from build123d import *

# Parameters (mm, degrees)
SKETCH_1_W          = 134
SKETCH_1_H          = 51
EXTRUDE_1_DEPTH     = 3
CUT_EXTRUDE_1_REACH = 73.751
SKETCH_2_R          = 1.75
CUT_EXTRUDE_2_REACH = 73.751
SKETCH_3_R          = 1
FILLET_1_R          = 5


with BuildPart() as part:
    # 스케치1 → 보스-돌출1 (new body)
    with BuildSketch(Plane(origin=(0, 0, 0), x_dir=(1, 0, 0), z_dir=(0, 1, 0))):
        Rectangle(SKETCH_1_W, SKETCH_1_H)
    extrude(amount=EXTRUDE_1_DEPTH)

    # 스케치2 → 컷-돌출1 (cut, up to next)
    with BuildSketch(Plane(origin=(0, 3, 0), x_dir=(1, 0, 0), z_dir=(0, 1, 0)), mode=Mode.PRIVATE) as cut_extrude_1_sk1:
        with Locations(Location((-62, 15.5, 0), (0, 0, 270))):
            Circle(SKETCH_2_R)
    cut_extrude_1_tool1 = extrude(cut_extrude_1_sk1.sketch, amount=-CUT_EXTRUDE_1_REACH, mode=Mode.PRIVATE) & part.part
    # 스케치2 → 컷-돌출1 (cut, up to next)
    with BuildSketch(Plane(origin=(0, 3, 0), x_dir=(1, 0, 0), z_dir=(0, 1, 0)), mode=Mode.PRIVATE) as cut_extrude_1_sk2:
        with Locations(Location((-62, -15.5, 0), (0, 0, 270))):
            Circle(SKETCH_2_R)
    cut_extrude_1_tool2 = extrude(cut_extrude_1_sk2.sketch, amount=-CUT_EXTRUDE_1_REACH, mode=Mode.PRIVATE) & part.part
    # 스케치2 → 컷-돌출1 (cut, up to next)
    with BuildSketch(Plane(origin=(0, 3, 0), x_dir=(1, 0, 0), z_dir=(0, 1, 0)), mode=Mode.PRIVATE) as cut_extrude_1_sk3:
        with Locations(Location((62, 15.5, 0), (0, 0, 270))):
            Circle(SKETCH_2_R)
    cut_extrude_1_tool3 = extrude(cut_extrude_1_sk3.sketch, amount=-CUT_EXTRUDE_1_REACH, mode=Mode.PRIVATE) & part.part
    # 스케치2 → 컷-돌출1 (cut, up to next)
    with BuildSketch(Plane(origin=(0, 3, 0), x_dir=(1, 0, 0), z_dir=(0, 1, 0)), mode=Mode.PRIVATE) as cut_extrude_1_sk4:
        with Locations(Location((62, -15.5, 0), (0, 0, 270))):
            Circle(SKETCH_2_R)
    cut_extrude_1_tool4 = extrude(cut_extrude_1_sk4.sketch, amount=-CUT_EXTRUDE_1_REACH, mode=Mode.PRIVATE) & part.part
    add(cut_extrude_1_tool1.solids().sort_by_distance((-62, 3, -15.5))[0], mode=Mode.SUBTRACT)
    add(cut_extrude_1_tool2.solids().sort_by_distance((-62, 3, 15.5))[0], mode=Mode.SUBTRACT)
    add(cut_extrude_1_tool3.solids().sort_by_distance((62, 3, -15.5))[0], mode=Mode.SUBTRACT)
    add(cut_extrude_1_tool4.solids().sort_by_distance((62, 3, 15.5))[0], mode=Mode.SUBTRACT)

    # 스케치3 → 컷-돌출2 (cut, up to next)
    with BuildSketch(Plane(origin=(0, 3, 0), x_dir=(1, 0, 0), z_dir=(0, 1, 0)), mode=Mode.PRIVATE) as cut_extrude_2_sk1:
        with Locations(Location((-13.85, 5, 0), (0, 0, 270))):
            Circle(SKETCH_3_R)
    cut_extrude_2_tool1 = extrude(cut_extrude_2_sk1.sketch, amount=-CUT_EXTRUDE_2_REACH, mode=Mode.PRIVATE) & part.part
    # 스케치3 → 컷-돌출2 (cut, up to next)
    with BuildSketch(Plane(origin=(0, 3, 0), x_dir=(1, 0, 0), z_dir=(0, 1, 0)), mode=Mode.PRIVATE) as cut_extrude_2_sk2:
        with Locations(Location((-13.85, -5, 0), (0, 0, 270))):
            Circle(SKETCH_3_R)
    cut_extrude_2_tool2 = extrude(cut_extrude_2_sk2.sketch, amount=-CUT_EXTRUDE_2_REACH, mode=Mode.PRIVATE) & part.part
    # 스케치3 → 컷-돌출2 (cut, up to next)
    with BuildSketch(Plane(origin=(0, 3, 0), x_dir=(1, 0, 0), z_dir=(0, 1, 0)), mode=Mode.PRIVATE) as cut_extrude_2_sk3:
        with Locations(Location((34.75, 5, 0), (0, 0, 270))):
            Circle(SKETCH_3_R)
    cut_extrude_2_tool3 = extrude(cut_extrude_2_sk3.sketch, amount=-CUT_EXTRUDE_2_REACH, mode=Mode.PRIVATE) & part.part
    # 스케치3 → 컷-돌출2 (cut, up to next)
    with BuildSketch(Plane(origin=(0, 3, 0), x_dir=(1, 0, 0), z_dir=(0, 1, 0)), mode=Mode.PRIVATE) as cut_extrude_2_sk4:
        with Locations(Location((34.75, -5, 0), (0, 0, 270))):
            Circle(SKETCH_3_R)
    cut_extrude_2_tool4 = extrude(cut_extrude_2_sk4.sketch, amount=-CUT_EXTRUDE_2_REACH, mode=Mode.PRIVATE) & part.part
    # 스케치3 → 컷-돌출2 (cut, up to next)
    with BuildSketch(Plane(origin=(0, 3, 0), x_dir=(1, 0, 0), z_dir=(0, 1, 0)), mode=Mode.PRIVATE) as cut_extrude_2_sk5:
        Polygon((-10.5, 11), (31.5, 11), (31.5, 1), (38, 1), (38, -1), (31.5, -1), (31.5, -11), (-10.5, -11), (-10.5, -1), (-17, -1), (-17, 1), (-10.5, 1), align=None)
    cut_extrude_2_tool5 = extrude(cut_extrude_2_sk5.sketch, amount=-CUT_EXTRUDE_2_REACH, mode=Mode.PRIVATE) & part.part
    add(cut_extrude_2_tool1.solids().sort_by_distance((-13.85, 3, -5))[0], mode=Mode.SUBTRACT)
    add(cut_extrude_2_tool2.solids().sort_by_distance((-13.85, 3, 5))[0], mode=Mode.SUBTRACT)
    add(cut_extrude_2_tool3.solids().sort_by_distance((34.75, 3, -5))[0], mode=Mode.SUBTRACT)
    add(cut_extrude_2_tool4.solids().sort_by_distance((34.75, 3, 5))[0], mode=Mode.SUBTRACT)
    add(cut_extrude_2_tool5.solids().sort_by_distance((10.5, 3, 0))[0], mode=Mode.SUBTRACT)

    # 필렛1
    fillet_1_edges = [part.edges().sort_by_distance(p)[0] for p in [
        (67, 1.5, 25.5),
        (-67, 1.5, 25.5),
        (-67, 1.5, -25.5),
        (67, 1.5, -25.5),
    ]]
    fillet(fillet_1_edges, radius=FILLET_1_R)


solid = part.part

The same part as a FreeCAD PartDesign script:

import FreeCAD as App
import Part
import Sketcher
from FreeCAD import Vector
Q = App.Units.Quantity


def edges_at(feature, points):
    """Names of the edges that pass closest to the given points."""
    edges = feature.Shape.Edges
    near = lambda p: min(range(len(edges)), key=lambda i: edges[i].distToShape(Part.Vertex(*p))[0])
    return sorted({f"Edge{near(p) + 1}" for p in points})

doc = App.newDocument("Part")
body = doc.addObject("PartDesign::Body", "Body")

# Sketch on XZ plane
sketch1 = doc.addObject("Sketcher::SketchObject", "Sketch")
body.addObject(sketch1)
sketch1.AttachmentSupport = (doc.XZ_Plane, [""])
sketch1.MapMode = "FlatFace"
sketch1.addGeometry(Part.LineSegment(Vector(-67, -26, 0), Vector(-67, 26, 0)), False)
sketch1.addGeometry(Part.LineSegment(Vector(-67, 26, 0), Vector(67, 26, 0)), False)
sketch1.addGeometry(Part.LineSegment(Vector(67, 26, 0), Vector(67, -26, 0)), False)
sketch1.addGeometry(Part.LineSegment(Vector(67, -26, 0), Vector(-67, -26, 0)), False)
sketch1.addConstraint(Sketcher.Constraint("Coincident", 0, 2, 1, 1))
sketch1.addConstraint(Sketcher.Constraint("Coincident", 1, 2, 2, 1))
sketch1.addConstraint(Sketcher.Constraint("Coincident", 2, 2, 3, 1))
sketch1.addConstraint(Sketcher.Constraint("Coincident", 3, 2, 0, 1))
sketch1.addConstraint(Sketcher.Constraint("Vertical", 0))
sketch1.addConstraint(Sketcher.Constraint("Horizontal", 1))
sketch1.addConstraint(Sketcher.Constraint("Vertical", 2))
sketch1.addConstraint(Sketcher.Constraint("Horizontal", 3))
sketch1.addConstraint(Sketcher.Constraint("Symmetric", 0, 2, 2, 2, -1, 1))
sketch1.addConstraint(Sketcher.Constraint("DistanceX", 1, 1, 1, 2, Q("134 mm")))
sketch1.addConstraint(Sketcher.Constraint("DistanceY", 0, 1, 0, 2, Q("51 mm")))
pad1 = doc.addObject("PartDesign::Pad", "Pad")
body.addObject(pad1)
pad1.Profile = sketch1
pad1.Length = 3
pad1.Reversed = True

# Sketch on XZ plane
sketch2 = doc.addObject("Sketcher::SketchObject", "Sketch001")
body.addObject(sketch2)
sketch2.AttachmentSupport = (doc.XZ_Plane, [""])
sketch2.MapMode = "FlatFace"
sketch2.AttachmentOffset = App.Placement(Vector(0, 0, -3), App.Rotation())
sketch2.addGeometry(Part.Circle(Vector(-62, -15.5, 0), Vector(0, 0, 1), 1.8), False)
sketch2.addConstraint(Sketcher.Constraint("Diameter", 0, Q("3.5 mm")))
sketch2.addConstraint(Sketcher.Constraint("DistanceX", 0, 3, -1, 1, Q("62 mm")))
sketch2.addConstraint(Sketcher.Constraint("DistanceY", 0, 3, -1, 1, Q("15.5 mm")))
pocket1 = doc.addObject("PartDesign::Pocket", "Pocket")
body.addObject(pocket1)
pocket1.Profile = sketch2
pocket1.Type = "UpToFirst"
pocket1.Reversed = True

# Sketch on XZ plane
sketch3 = doc.addObject("Sketcher::SketchObject", "Sketch002")
body.addObject(sketch3)
sketch3.AttachmentSupport = (doc.XZ_Plane, [""])
sketch3.MapMode = "FlatFace"
sketch3.AttachmentOffset = App.Placement(Vector(0, 0, -3), App.Rotation())
sketch3.addGeometry(Part.Circle(Vector(-62, 15.5, 0), Vector(0, 0, 1), 1.8), False)
sketch3.addConstraint(Sketcher.Constraint("Diameter", 0, Q("3.5 mm")))
sketch3.addConstraint(Sketcher.Constraint("DistanceX", 0, 3, -1, 1, Q("62 mm")))
sketch3.addConstraint(Sketcher.Constraint("DistanceY", -1, 1, 0, 3, Q("15.5 mm")))
pocket2 = doc.addObject("PartDesign::Pocket", "Pocket001")
body.addObject(pocket2)
pocket2.Profile = sketch3
pocket2.Type = "UpToFirst"
pocket2.Reversed = True

# Sketch on XZ plane
sketch4 = doc.addObject("Sketcher::SketchObject", "Sketch003")
body.addObject(sketch4)
sketch4.AttachmentSupport = (doc.XZ_Plane, [""])
sketch4.MapMode = "FlatFace"
sketch4.AttachmentOffset = App.Placement(Vector(0, 0, -3), App.Rotation())
sketch4.addGeometry(Part.Circle(Vector(62, -15.5, 0), Vector(0, 0, 1), 1.8), False)
sketch4.addConstraint(Sketcher.Constraint("Diameter", 0, Q("3.5 mm")))
sketch4.addConstraint(Sketcher.Constraint("DistanceX", -1, 1, 0, 3, Q("62 mm")))
sketch4.addConstraint(Sketcher.Constraint("DistanceY", 0, 3, -1, 1, Q("15.5 mm")))
pocket3 = doc.addObject("PartDesign::Pocket", "Pocket002")
body.addObject(pocket3)
pocket3.Profile = sketch4
pocket3.Type = "UpToFirst"
pocket3.Reversed = True

# Sketch on XZ plane
sketch5 = doc.addObject("Sketcher::SketchObject", "Sketch004")
body.addObject(sketch5)
sketch5.AttachmentSupport = (doc.XZ_Plane, [""])
sketch5.MapMode = "FlatFace"
sketch5.AttachmentOffset = App.Placement(Vector(0, 0, -3), App.Rotation())
sketch5.addGeometry(Part.Circle(Vector(62, 15.5, 0), Vector(0, 0, 1), 1.8), False)
sketch5.addConstraint(Sketcher.Constraint("Diameter", 0, Q("3.5 mm")))
sketch5.addConstraint(Sketcher.Constraint("DistanceX", -1, 1, 0, 3, Q("62 mm")))
sketch5.addConstraint(Sketcher.Constraint("DistanceY", -1, 1, 0, 3, Q("15.5 mm")))
pocket4 = doc.addObject("PartDesign::Pocket", "Pocket003")
body.addObject(pocket4)
pocket4.Profile = sketch5
pocket4.Type = "UpToFirst"
pocket4.Reversed = True

# Sketch on XZ plane
sketch6 = doc.addObject("Sketcher::SketchObject", "Sketch005")
body.addObject(sketch6)
sketch6.AttachmentSupport = (doc.XZ_Plane, [""])
sketch6.MapMode = "FlatFace"
sketch6.AttachmentOffset = App.Placement(Vector(0, 0, -3), App.Rotation())
sketch6.addGeometry(Part.Circle(Vector(-13.8, -5, 0), Vector(0, 0, 1), 1), False)
sketch6.addConstraint(Sketcher.Constraint("Diameter", 0, Q("2 mm")))
sketch6.addConstraint(Sketcher.Constraint("DistanceY", 0, 3, -1, 1, Q("5 mm")))
sketch6.addConstraint(Sketcher.Constraint("DistanceX", 0, 3, -1, 1, Q("13.85 mm")))
pocket5 = doc.addObject("PartDesign::Pocket", "Pocket004")
body.addObject(pocket5)
pocket5.Profile = sketch6
pocket5.Type = "UpToFirst"
pocket5.Reversed = True

# Sketch on XZ plane
sketch7 = doc.addObject("Sketcher::SketchObject", "Sketch006")
body.addObject(sketch7)
sketch7.AttachmentSupport = (doc.XZ_Plane, [""])
sketch7.MapMode = "FlatFace"
sketch7.AttachmentOffset = App.Placement(Vector(0, 0, -3), App.Rotation())
sketch7.addGeometry(Part.Circle(Vector(-13.8, 5, 0), Vector(0, 0, 1), 1), False)
sketch7.addConstraint(Sketcher.Constraint("Diameter", 0, Q("2 mm")))
sketch7.addConstraint(Sketcher.Constraint("DistanceY", -1, 1, 0, 3, Q("5 mm")))
sketch7.addConstraint(Sketcher.Constraint("DistanceX", 0, 3, -1, 1, Q("13.85 mm")))
pocket6 = doc.addObject("PartDesign::Pocket", "Pocket005")
body.addObject(pocket6)
pocket6.Profile = sketch7
pocket6.Type = "UpToFirst"
pocket6.Reversed = True

# Sketch on XZ plane
sketch8 = doc.addObject("Sketcher::SketchObject", "Sketch007")
body.addObject(sketch8)
sketch8.AttachmentSupport = (doc.XZ_Plane, [""])
sketch8.MapMode = "FlatFace"
sketch8.AttachmentOffset = App.Placement(Vector(0, 0, -3), App.Rotation())
sketch8.addGeometry(Part.Circle(Vector(34.8, -5, 0), Vector(0, 0, 1), 1), False)
sketch8.addConstraint(Sketcher.Constraint("Diameter", 0, Q("2 mm")))
sketch8.addConstraint(Sketcher.Constraint("DistanceY", 0, 3, -1, 1, Q("5 mm")))
sketch8.addConstraint(Sketcher.Constraint("DistanceX", -1, 1, 0, 3, Q("34.75 mm")))
pocket7 = doc.addObject("PartDesign::Pocket", "Pocket006")
body.addObject(pocket7)
pocket7.Profile = sketch8
pocket7.Type = "UpToFirst"
pocket7.Reversed = True

# Sketch on XZ plane
sketch9 = doc.addObject("Sketcher::SketchObject", "Sketch008")
body.addObject(sketch9)
sketch9.AttachmentSupport = (doc.XZ_Plane, [""])
sketch9.MapMode = "FlatFace"
sketch9.AttachmentOffset = App.Placement(Vector(0, 0, -3), App.Rotation())
sketch9.addGeometry(Part.Circle(Vector(34.8, 5, 0), Vector(0, 0, 1), 1), False)
sketch9.addConstraint(Sketcher.Constraint("Diameter", 0, Q("2 mm")))
sketch9.addConstraint(Sketcher.Constraint("DistanceY", -1, 1, 0, 3, Q("5 mm")))
sketch9.addConstraint(Sketcher.Constraint("DistanceX", -1, 1, 0, 3, Q("34.75 mm")))
pocket8 = doc.addObject("PartDesign::Pocket", "Pocket007")
body.addObject(pocket8)
pocket8.Profile = sketch9
pocket8.Type = "UpToFirst"
pocket8.Reversed = True

# Sketch on XZ plane
sketch10 = doc.addObject("Sketcher::SketchObject", "Sketch009")
body.addObject(sketch10)
sketch10.AttachmentSupport = (doc.XZ_Plane, [""])
sketch10.MapMode = "FlatFace"
sketch10.AttachmentOffset = App.Placement(Vector(0, 0, -3), App.Rotation())
sketch10.addGeometry(Part.LineSegment(Vector(31.5, -11, 0), Vector(-10.5, -11, 0)), False)
sketch10.addGeometry(Part.LineSegment(Vector(-10.5, -11, 0), Vector(-10.5, -1, 0)), False)
sketch10.addGeometry(Part.LineSegment(Vector(-10.5, -1, 0), Vector(-17, -1, 0)), False)
sketch10.addGeometry(Part.LineSegment(Vector(-17, -1, 0), Vector(-17, 1, 0)), False)
sketch10.addGeometry(Part.LineSegment(Vector(-17, 1, 0), Vector(-10.5, 1, 0)), False)
sketch10.addGeometry(Part.LineSegment(Vector(-10.5, 1, 0), Vector(-10.5, 11, 0)), False)
sketch10.addGeometry(Part.LineSegment(Vector(-10.5, 11, 0), Vector(31.5, 11, 0)), False)
sketch10.addGeometry(Part.LineSegment(Vector(31.5, 11, 0), Vector(31.5, 1, 0)), False)
sketch10.addGeometry(Part.LineSegment(Vector(31.5, 1, 0), Vector(38, 1, 0)), False)
sketch10.addGeometry(Part.LineSegment(Vector(38, 1, 0), Vector(38, -1, 0)), False)
sketch10.addGeometry(Part.LineSegment(Vector(38, -1, 0), Vector(31.5, -1, 0)), False)
sketch10.addGeometry(Part.LineSegment(Vector(31.5, -1, 0), Vector(31.5, -11, 0)), False)
sketch10.addConstraint(Sketcher.Constraint("Coincident", 0, 2, 1, 1))
sketch10.addConstraint(Sketcher.Constraint("Coincident", 1, 2, 2, 1))
sketch10.addConstraint(Sketcher.Constraint("Coincident", 2, 2, 3, 1))
sketch10.addConstraint(Sketcher.Constraint("Coincident", 3, 2, 4, 1))
sketch10.addConstraint(Sketcher.Constraint("Coincident", 4, 2, 5, 1))
sketch10.addConstraint(Sketcher.Constraint("Coincident", 5, 2, 6, 1))
sketch10.addConstraint(Sketcher.Constraint("Coincident", 6, 2, 7, 1))
sketch10.addConstraint(Sketcher.Constraint("Coincident", 7, 2, 8, 1))
sketch10.addConstraint(Sketcher.Constraint("Coincident", 8, 2, 9, 1))
sketch10.addConstraint(Sketcher.Constraint("Coincident", 9, 2, 10, 1))
sketch10.addConstraint(Sketcher.Constraint("Coincident", 10, 2, 11, 1))
sketch10.addConstraint(Sketcher.Constraint("Coincident", 11, 2, 0, 1))
sketch10.addConstraint(Sketcher.Constraint("Horizontal", 0))
sketch10.addConstraint(Sketcher.Constraint("Vertical", 1))
sketch10.addConstraint(Sketcher.Constraint("Horizontal", 2))
sketch10.addConstraint(Sketcher.Constraint("Vertical", 3))
sketch10.addConstraint(Sketcher.Constraint("Horizontal", 4))
sketch10.addConstraint(Sketcher.Constraint("Vertical", 5))
sketch10.addConstraint(Sketcher.Constraint("Horizontal", 6))
sketch10.addConstraint(Sketcher.Constraint("Vertical", 7))
sketch10.addConstraint(Sketcher.Constraint("Horizontal", 8))
sketch10.addConstraint(Sketcher.Constraint("Vertical", 9))
sketch10.addConstraint(Sketcher.Constraint("Horizontal", 10))
sketch10.addConstraint(Sketcher.Constraint("Vertical", 11))
sketch10.addConstraint(Sketcher.Constraint("Symmetric", 1, 2, 4, 2, -1))
sketch10.addConstraint(Sketcher.Constraint("Symmetric", 7, 2, 10, 2, -1))
sketch10.addConstraint(Sketcher.Constraint("Horizontal", 4, 2, 7, 2))
sketch10.addConstraint(Sketcher.Constraint("Equal", 4, 8))
sketch10.addConstraint(Sketcher.Constraint("Equal", 1, 5))
sketch10.addConstraint(Sketcher.Constraint("DistanceX", 0, 2, 0, 1, Q("42 mm")))
sketch10.addConstraint(Sketcher.Constraint("DistanceY", 1, 1, 1, 2, Q("10 mm")))
sketch10.addConstraint(Sketcher.Constraint("DistanceY", 3, 1, 3, 2, Q("2 mm")))
sketch10.addConstraint(Sketcher.Constraint("DistanceX", 2, 2, 2, 1, Q("6.5 mm")))
sketch10.addConstraint(Sketcher.Constraint("DistanceX", 2, 2, -1, 1, Q("17 mm")))
pocket9 = doc.addObject("PartDesign::Pocket", "Pocket008")
body.addObject(pocket9)
pocket9.Profile = sketch10
pocket9.Type = "UpToFirst"
pocket9.Reversed = True
doc.recompute()

fillet = doc.addObject("PartDesign::Fillet", "Fillet")
body.addObject(fillet)
fillet.Base = (pocket9, edges_at(pocket9, [
    (67, 1.5, 25.5),
    (-67, 1.5, 25.5),
    (-67, 1.5, -25.5),
    (67, 1.5, -25.5),
]))
fillet.Radius = 5

doc.recompute()
